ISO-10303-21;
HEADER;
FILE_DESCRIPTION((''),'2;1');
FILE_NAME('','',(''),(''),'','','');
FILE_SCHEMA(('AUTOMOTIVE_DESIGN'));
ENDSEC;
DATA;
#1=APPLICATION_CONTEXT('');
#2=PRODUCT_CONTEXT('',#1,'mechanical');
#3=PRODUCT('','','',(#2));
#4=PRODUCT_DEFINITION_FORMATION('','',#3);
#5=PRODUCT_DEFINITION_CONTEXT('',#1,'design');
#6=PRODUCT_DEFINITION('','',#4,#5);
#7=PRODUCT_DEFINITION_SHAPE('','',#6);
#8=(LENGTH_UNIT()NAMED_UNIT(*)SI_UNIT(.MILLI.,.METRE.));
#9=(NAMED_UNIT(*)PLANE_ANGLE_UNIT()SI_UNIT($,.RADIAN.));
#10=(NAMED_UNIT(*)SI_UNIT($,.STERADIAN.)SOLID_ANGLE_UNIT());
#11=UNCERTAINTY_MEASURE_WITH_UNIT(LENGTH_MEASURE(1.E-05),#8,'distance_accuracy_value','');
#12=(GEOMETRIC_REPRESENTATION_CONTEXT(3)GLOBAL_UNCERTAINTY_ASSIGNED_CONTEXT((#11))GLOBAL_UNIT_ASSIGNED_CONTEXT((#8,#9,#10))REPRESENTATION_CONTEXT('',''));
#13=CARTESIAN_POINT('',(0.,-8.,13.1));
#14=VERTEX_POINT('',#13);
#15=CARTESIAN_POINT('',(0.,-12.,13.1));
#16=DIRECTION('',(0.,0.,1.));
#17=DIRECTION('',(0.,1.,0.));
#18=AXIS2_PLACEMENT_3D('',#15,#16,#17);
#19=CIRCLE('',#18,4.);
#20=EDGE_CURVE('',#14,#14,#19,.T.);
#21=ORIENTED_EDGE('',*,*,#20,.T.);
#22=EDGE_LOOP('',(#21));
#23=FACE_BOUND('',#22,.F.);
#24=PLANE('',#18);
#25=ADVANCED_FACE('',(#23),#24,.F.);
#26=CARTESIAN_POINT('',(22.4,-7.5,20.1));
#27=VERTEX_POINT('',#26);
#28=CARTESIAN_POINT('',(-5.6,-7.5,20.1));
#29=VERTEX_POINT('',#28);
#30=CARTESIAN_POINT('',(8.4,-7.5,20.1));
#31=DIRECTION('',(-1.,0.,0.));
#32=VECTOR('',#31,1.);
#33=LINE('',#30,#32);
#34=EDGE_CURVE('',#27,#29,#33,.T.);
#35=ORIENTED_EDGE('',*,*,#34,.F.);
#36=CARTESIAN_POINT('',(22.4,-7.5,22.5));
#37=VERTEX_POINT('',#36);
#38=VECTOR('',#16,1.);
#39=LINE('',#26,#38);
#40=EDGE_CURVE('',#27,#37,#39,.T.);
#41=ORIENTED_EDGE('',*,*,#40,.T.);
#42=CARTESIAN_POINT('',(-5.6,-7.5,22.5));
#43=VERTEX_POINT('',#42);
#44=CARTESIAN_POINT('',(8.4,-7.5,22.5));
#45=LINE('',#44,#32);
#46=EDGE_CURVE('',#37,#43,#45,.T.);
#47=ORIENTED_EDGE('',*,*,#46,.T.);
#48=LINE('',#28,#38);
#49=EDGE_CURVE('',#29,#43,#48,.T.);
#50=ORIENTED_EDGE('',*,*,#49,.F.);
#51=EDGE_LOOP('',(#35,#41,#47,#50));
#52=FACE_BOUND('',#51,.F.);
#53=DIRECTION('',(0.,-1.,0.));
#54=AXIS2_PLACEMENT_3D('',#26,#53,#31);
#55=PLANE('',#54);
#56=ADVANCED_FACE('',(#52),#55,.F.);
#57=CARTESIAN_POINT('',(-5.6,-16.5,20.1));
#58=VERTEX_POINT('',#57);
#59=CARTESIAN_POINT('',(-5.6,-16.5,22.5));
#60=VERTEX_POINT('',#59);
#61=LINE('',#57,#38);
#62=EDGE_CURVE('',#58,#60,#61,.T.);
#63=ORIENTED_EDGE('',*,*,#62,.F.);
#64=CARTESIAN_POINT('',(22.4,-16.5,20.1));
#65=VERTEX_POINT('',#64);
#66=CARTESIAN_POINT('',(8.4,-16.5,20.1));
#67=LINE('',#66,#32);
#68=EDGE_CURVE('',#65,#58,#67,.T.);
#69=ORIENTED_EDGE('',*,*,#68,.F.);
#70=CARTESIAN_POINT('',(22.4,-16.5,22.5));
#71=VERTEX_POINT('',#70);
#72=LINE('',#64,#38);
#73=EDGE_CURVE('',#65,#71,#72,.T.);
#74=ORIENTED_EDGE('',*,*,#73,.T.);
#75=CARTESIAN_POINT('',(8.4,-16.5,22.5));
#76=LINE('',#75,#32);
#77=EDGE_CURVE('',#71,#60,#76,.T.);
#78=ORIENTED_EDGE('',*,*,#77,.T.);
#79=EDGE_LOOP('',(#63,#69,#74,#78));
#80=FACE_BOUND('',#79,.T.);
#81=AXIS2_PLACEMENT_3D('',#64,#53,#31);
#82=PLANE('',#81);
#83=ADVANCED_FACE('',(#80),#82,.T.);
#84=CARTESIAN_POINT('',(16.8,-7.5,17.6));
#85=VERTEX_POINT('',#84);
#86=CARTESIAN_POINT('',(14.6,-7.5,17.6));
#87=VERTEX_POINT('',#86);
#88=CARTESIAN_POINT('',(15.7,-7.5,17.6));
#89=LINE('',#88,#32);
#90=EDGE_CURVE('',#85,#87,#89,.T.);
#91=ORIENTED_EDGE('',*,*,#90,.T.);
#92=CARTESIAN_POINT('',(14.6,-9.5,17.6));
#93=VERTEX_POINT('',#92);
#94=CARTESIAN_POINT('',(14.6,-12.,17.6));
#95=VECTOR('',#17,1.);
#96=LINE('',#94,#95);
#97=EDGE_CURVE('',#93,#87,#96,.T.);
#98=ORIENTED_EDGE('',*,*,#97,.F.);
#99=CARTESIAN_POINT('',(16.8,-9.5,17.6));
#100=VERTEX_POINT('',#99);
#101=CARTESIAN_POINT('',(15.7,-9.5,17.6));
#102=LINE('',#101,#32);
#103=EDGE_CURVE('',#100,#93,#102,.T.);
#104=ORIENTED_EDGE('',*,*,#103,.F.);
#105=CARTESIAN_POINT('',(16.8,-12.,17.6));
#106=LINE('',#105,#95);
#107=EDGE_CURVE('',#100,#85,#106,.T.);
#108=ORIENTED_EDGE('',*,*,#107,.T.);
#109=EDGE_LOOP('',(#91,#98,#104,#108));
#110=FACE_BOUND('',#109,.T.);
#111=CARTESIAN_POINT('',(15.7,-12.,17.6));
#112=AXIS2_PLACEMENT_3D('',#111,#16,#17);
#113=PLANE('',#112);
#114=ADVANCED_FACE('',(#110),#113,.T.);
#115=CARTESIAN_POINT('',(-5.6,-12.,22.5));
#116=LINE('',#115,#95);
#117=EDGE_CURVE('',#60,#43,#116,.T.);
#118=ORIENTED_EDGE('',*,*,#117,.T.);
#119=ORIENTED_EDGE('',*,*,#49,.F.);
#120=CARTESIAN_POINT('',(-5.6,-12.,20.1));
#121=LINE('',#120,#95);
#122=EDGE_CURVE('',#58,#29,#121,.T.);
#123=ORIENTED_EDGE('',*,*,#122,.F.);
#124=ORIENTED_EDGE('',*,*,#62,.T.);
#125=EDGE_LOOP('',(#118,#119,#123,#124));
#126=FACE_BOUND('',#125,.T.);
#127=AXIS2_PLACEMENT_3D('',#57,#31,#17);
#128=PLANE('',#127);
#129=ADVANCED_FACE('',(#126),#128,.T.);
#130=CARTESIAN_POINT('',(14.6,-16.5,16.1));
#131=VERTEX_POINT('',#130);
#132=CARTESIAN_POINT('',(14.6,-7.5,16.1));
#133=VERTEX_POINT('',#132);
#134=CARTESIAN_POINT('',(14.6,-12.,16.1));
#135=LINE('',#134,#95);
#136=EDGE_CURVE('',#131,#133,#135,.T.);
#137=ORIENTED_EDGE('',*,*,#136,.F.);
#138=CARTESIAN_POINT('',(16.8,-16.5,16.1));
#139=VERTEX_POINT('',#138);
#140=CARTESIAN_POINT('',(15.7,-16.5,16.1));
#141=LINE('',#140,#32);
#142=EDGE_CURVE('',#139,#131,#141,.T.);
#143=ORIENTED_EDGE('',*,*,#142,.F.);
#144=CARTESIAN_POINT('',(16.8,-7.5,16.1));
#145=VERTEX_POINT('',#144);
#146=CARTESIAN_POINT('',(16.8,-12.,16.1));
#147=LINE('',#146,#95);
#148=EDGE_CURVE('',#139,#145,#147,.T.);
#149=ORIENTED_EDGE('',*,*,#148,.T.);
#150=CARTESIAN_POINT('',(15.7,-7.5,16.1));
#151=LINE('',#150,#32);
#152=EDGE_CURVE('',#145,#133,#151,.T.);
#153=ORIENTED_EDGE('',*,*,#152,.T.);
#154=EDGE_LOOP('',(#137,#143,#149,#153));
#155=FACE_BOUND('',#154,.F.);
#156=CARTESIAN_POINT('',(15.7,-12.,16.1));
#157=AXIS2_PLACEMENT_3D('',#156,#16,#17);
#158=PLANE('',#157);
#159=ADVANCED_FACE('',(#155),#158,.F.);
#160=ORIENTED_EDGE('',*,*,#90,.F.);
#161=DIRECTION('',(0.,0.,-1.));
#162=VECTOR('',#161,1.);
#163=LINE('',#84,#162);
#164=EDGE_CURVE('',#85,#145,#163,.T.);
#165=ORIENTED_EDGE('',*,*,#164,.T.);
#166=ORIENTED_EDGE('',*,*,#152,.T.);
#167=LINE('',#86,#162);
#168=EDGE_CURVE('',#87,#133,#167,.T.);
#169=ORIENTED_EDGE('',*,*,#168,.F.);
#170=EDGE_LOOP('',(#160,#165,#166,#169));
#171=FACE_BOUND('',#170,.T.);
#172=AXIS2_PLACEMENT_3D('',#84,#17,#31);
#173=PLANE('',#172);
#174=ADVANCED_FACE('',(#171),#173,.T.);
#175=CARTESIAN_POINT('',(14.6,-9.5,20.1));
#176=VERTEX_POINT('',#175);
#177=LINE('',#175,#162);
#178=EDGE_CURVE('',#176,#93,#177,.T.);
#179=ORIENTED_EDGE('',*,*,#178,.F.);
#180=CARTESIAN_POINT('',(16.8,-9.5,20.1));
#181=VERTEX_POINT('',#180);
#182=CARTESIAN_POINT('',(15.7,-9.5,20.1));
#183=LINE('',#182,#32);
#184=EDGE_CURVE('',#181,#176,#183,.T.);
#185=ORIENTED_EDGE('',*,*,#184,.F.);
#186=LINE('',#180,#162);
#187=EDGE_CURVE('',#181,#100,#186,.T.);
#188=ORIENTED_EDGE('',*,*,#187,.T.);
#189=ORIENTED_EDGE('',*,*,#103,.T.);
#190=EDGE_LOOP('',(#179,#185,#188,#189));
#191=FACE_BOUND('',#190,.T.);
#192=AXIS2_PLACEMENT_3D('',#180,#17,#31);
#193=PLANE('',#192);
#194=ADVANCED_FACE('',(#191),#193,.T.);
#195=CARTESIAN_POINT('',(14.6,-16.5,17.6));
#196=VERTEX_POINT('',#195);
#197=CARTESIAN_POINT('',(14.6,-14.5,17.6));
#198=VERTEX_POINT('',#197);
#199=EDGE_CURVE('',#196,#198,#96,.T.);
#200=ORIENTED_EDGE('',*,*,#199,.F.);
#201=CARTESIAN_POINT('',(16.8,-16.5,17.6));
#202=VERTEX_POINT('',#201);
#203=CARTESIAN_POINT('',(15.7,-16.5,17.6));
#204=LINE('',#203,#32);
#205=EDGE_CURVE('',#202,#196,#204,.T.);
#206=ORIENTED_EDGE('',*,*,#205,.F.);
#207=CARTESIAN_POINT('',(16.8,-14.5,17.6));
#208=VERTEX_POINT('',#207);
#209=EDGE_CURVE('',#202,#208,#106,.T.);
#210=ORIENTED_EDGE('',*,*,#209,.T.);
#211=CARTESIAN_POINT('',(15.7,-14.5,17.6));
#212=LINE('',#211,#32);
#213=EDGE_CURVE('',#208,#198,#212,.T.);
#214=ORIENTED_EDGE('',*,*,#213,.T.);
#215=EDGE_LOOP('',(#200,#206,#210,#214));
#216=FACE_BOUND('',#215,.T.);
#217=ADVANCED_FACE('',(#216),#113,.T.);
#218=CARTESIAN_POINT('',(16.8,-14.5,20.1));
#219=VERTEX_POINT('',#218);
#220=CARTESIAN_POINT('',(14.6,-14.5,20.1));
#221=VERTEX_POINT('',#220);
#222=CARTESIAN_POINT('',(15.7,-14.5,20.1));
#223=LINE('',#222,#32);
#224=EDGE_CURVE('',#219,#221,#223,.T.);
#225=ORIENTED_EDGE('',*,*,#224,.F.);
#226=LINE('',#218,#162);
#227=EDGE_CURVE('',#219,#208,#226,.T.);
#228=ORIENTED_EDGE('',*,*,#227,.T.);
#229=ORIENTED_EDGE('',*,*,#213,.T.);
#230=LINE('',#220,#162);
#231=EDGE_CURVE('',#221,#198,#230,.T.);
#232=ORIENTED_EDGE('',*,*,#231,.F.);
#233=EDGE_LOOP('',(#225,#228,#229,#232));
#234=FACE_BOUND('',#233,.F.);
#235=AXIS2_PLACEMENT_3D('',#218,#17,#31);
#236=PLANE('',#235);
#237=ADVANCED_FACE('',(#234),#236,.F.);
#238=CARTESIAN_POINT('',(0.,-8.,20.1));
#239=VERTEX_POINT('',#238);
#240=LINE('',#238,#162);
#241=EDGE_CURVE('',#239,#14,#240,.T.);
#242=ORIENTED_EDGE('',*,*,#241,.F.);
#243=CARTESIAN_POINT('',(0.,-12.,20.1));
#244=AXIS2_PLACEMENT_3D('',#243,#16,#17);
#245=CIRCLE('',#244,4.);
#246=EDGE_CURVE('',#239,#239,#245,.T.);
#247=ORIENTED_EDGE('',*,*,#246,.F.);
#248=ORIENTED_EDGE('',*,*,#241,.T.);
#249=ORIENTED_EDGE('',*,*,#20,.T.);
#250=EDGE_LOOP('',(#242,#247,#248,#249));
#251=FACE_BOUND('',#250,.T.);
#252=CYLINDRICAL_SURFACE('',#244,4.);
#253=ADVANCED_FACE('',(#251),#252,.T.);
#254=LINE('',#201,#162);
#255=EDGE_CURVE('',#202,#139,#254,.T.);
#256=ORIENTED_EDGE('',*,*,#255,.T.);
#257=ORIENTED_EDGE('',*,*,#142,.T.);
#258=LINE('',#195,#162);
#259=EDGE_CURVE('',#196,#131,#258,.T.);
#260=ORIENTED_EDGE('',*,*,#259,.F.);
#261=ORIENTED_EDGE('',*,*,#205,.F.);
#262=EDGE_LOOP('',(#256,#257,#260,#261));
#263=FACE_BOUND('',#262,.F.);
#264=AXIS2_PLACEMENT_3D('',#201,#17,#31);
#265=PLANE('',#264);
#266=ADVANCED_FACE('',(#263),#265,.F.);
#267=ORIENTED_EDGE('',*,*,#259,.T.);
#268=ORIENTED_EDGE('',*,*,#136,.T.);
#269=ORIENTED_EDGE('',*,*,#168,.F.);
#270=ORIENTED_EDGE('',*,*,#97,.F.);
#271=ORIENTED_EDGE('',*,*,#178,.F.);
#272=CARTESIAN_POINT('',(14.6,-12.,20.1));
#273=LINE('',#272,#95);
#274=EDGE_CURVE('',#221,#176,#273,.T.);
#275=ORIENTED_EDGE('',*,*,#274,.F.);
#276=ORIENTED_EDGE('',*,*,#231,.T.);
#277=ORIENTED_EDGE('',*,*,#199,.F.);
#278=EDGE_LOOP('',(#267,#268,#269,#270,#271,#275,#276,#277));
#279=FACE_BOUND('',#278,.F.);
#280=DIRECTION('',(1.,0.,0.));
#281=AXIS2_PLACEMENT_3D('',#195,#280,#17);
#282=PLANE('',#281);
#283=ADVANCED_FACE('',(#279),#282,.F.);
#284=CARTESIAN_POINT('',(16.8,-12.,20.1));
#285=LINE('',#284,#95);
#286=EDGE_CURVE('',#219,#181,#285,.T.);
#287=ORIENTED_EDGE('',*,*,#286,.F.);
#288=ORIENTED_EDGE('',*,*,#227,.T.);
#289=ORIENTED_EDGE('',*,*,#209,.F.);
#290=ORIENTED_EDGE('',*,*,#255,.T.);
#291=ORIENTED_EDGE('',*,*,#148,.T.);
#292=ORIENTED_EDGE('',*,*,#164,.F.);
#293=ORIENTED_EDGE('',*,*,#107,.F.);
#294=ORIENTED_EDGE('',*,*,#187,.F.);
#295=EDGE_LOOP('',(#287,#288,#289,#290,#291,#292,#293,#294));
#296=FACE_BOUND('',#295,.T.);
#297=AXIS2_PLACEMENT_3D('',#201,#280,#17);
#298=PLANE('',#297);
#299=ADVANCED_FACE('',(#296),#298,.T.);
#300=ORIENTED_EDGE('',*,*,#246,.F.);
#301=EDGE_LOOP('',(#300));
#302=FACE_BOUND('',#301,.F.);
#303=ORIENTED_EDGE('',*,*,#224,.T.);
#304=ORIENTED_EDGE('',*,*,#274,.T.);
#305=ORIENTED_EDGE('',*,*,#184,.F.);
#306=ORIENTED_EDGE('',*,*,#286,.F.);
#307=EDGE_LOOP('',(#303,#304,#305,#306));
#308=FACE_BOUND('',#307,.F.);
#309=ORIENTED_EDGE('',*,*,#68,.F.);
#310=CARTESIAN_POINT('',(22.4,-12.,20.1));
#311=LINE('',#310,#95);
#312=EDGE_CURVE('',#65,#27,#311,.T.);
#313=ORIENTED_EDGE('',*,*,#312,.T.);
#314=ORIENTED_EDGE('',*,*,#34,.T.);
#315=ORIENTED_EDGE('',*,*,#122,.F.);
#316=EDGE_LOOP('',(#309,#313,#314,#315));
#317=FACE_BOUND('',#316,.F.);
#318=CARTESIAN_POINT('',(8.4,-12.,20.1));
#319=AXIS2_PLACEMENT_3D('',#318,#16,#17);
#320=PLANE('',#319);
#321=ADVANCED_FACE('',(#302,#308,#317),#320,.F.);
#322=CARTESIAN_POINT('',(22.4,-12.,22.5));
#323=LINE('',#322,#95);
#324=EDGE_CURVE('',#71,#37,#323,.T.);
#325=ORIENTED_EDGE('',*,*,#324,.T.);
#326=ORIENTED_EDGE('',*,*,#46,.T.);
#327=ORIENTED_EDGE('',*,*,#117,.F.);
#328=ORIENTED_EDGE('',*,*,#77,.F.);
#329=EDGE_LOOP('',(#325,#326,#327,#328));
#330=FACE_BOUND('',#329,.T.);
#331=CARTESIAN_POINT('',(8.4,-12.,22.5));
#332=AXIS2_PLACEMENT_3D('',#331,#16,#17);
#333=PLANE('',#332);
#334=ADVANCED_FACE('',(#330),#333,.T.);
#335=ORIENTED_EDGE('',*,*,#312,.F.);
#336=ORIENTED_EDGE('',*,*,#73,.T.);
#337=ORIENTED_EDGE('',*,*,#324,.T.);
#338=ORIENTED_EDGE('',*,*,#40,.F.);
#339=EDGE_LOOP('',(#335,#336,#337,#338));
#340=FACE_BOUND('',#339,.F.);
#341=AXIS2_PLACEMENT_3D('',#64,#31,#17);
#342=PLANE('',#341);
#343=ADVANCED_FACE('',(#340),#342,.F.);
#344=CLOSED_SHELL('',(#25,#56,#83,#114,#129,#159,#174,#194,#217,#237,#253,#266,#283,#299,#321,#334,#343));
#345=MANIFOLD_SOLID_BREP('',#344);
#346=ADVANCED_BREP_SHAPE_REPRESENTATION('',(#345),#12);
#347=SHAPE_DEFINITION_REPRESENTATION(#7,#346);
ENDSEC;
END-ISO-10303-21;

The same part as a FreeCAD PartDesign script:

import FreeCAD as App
import Part
import Sketcher

V = App.Vector
Q = App.Units.Quantity


def add_polygon(sketch, points):
    """Adds a closed chain of lines whose ends are joined by coincident constraints."""
    first, n = sketch.GeometryCount, len(points)
    for a, b in zip(points, points[1:] + points[:1]):
        sketch.addGeometry(Part.LineSegment(App.Vector(*a, 0), App.Vector(*b, 0)), False)
    for i in range(n):
        sketch.addConstraint(Sketcher.Constraint("Coincident", first + i, 2, first + (i + 1) % n, 1))

doc = App.newDocument("Part")
body = doc.addObject("PartDesign::Body", "Body")

sketch1 = body.newObject("Sketcher::SketchObject", "Sketch")
sketch1.AttachmentSupport = (doc.getObject("XY_Plane"), [""])
sketch1.MapMode = "FlatFace"
add_polygon(sketch1, [(-4, 14), (-4, -14), (4, -14), (4, 14)])
sketch1.addConstraint(Sketcher.Constraint("Vertical", 0))
sketch1.addConstraint(Sketcher.Constraint("Horizontal", 1))
sketch1.addConstraint(Sketcher.Constraint("Vertical", 2))
sketch1.addConstraint(Sketcher.Constraint("Horizontal", 3))
sketch1.addConstraint(Sketcher.Constraint("Symmetric", 0, 2, 2, 2, -1, 1))
sketch1.addConstraint(Sketcher.Constraint("DistanceX", 1, 1, 1, 2, Q("9 mm")))
sketch1.addConstraint(Sketcher.Constraint("DistanceY", 0, 2, 0, 1, Q("28 mm")))
pad1 = body.newObject("PartDesign::Pad", "Pad")
pad1.Profile = sketch1
pad1.Length = 2.4

sketch2 = body.newObject("Sketcher::SketchObject", "Sketch001")
sketch2.AttachmentSupport = (doc.getObject("XY_Plane"), [""])
sketch2.MapMode = "FlatFace"
add_polygon(sketch2, [(-2.5, -6.2), (-2.5, -8.4), (2.5, -8.4), (2.5, -6.2)])
sketch2.addConstraint(Sketcher.Constraint("Vertical", 0))
sketch2.addConstraint(Sketcher.Constraint("Horizontal", 1))
sketch2.addConstraint(Sketcher.Constraint("Vertical", 2))
sketch2.addConstraint(Sketcher.Constraint("Horizontal", 3))
sketch2.addConstraint(Sketcher.Constraint("DistanceX", 1, 1, 1, 2, Q("5 mm")))
sketch2.addConstraint(Sketcher.Constraint("DistanceY", 0, 2, 0, 1, Q("2.2 mm")))
sketch2.addConstraint(Sketcher.Constraint("DistanceX", 0, 2, -1, 1, Q("2.5 mm")))
sketch2.addConstraint(Sketcher.Constraint("DistanceY", 0, 2, -1, 1, Q("8.4 mm")))
pad2 = body.newObject("PartDesign::Pad", "Pad001")
pad2.Profile = sketch2
pad2.Length = 2.5
pad2.Reversed = True

sketch3 = body.newObject("Sketcher::SketchObject", "Sketch002")
sketch3.AttachmentSupport = (doc.getObject("XY_Plane"), [""])
sketch3.MapMode = "FlatFace"
sketch3.AttachmentOffset = App.Placement(V(0, 0, -2.5), App.Rotation())
add_polygon(sketch3, [(-4.5, -6.2), (-4.5, -8.4), (4.5, -8.4), (4.5, -6.2)])
sketch3.addConstraint(Sketcher.Constraint("Vertical", 0))
sketch3.addConstraint(Sketcher.Constraint("Horizontal", 1))
sketch3.addConstraint(Sketcher.Constraint("Vertical", 2))
sketch3.addConstraint(Sketcher.Constraint("Horizontal", 3))
sketch3.addConstraint(Sketcher.Constraint("DistanceX", 1, 1, 1, 2, Q("9 mm")))
sketch3.addConstraint(Sketcher.Constraint("DistanceY", 0, 2, 0, 1, Q("2.2 mm")))
sketch3.addConstraint(Sketcher.Constraint("DistanceX", 0, 2, -1, 1, Q("4.5 mm")))
sketch3.addConstraint(Sketcher.Constraint("DistanceY", 0, 2, -1, 1, Q("8.4 mm")))
pad3 = body.newObject("PartDesign::Pad", "Pad002")
pad3.Profile = sketch3
pad3.Length = 1.5
pad3.Reversed = True

sketch4 = body.newObject("Sketcher::SketchObject", "Sketch003")
sketch4.AttachmentSupport = (doc.getObject("XY_Plane"), [""])
sketch4.MapMode = "FlatFace"
sketch4.addGeometry(Part.Circle(V(0, 8.4, 0), V(0, 0, 1), 4), False)
sketch4.addConstraint(Sketcher.Constraint("PointOnObject", 0, 3, -2))
sketch4.addConstraint(Sketcher.Constraint("Diameter", 0, Q("8 mm")))
sketch4.addConstraint(Sketcher.Constraint("DistanceY", -1, 1, 0, 3, Q("8.4 mm")))
pad4 = body.newObject("PartDesign::Pad", "Pad003")
pad4.Profile = sketch4
pad4.Length = 7
pad4.Reversed = True
body2 = doc.addObject("PartDesign::Body", "Body001")
doc.recompute()

body.Placement = App.Placement(V(8.4, -12, 20.1), App.Rotation(V(0, 0, 1), 90))
boolean = body2.newObject("PartDesign::Boolean", "Boolean")
boolean.Type = "Fuse"
boolean.addObjects([body])

doc.recompute()
